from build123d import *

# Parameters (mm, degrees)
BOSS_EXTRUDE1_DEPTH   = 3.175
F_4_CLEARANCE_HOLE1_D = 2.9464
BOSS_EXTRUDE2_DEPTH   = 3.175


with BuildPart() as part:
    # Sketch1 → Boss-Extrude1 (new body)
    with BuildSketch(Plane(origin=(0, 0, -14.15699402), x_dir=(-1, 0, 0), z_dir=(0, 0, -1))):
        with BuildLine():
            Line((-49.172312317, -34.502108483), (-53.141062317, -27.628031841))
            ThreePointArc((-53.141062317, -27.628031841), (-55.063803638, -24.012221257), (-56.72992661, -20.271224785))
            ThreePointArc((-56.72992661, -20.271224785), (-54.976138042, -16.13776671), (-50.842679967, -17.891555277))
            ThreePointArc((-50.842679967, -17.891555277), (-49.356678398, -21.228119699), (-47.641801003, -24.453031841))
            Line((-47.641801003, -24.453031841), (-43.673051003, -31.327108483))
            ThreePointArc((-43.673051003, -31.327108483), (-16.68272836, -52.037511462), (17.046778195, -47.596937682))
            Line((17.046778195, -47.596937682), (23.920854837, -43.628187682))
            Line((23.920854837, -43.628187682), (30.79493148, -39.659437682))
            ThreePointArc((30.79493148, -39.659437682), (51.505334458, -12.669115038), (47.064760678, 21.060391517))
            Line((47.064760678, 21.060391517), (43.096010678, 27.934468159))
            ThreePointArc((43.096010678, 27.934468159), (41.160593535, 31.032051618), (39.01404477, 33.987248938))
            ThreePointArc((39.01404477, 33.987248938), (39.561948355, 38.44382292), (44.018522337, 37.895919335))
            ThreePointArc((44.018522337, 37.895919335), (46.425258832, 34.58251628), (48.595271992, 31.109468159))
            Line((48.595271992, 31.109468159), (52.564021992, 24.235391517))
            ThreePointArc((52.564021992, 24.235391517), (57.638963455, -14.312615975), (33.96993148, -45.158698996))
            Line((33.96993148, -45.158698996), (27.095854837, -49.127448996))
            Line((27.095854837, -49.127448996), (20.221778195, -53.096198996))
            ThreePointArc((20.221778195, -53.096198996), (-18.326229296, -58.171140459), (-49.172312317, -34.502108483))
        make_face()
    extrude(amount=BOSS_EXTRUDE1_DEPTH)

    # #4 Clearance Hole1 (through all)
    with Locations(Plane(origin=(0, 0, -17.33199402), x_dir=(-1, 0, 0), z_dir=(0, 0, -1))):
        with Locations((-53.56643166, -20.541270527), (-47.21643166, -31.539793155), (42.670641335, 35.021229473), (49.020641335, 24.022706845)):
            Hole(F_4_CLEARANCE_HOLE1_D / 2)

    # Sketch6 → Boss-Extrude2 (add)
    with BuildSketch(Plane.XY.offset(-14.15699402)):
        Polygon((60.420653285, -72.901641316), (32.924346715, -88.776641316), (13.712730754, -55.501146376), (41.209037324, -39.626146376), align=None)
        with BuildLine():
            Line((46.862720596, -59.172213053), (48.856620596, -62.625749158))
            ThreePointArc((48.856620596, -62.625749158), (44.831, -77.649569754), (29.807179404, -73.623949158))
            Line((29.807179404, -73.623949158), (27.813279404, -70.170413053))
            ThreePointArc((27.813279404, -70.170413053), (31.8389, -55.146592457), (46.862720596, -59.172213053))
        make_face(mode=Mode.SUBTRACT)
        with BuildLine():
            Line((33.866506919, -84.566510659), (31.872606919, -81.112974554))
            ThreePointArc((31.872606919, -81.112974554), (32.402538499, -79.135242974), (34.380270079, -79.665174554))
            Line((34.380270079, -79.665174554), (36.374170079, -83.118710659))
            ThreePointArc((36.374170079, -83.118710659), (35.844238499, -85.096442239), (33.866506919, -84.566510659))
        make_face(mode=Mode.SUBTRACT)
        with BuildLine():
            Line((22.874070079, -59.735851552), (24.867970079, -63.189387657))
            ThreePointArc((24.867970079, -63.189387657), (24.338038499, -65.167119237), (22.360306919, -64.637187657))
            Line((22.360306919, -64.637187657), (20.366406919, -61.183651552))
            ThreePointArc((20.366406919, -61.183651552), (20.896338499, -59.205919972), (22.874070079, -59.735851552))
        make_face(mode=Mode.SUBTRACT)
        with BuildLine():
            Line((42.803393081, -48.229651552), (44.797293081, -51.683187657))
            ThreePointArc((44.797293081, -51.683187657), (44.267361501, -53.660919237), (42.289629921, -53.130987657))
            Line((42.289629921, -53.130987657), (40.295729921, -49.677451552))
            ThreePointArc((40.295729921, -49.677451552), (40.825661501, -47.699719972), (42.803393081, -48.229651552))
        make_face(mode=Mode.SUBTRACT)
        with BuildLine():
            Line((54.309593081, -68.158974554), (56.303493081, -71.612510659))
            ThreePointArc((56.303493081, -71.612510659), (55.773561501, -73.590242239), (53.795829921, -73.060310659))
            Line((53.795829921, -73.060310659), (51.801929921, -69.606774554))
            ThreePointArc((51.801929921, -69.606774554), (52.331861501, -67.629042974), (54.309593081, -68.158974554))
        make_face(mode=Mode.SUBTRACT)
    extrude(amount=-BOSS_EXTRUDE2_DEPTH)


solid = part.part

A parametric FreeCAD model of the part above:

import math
import FreeCAD as App
import Part
import Sketcher
from FreeCAD import Vector
Q = App.Units.Quantity

doc = App.newDocument("Part")
params = doc.addObject("Spreadsheet::Sheet", "Params")
for row, (alias, value) in enumerate([
    ("sketch1_radius", "2 in"),
    ("sketch1_radius2", "1.75 in"),
    ("sketch1_radius3", "2.3125 in"),
    ("pad1_length", "0.125 in"),
    ("sketch2_diameter", "0.116 in"),
    ("hole_diameter", "0.116 in"),
    ("sketch3_radius", "0.057 in"),
    ("sketch3_radius2", "0.433 in"),
    ("sketch3_length", "1.25 in"),
    ("sketch3_length2", "0.157 in"),
    ("pad2_length", "0.125 in"),
], start=1):
    params.set(f"A{row}", alias)
    params.set(f"B{row}", "=" + value)
    params.setAlias(f"B{row}", alias)

body = doc.addObject("PartDesign::Body", "Body")

sketch1 = body.newObject("Sketcher::SketchObject", "Sketch")
sketch1.AttachmentSupport = (doc.getObject("XY_Plane"), [""])
sketch1.MapMode = "FlatFace"
sketch1.AttachmentOffset = App.Placement(Vector(0, 0, -14.156994), App.Rotation())
sketch1.addGeometry([
    Part.LineSegment(Vector(53.141062, -27.628032, 0), Vector(49.172312, -34.502108, 0)),
    Part.ArcOfCircle(Part.Circle(Vector(5.178222, -9.102108, 0), Vector(0, 0, 1), 50.8), math.radians(-120), math.radians(-30)),
    Part.LineSegment(Vector(-20.221778, -53.096199, 0), Vector(-27.095855, -49.127449, 0)),
    Part.LineSegment(Vector(-27.095855, -49.127449, 0), Vector(-33.969931, -45.158699, 0)),
    Part.ArcOfCircle(Part.Circle(Vector(-8.569931, -1.164608, 0), Vector(0, 0, 1), 50.8), math.radians(150), math.radians(240)),
    Part.LineSegment(Vector(-52.564022, 24.235392, 0), Vector(-48.595272, 31.109468, 0)),
    Part.ArcOfCircle(Part.Circle(Vector(2.272895, 1.740718, 0), Vector(0, 0, 1), 58.7375), math.radians(142.00893), math.radians(150)),
    Part.ArcOfCircle(Part.Circle(Vector(-41.516284, 35.941584, 0), Vector(0, 0, 1), 3.175), math.radians(-37.99107), math.radians(142.00893)),
    Part.ArcOfCircle(Part.Circle(Vector(2.272895, 1.740718, 0), Vector(0, 0, 1), 52.3875), math.radians(142.00893), math.radians(150)),
    Part.LineSegment(Vector(-43.096011, 27.934468, 0), Vector(-47.064761, 21.060392, 0)),
    Part.ArcOfCircle(Part.Circle(Vector(-8.569931, -1.164608, 0), Vector(0, 0, 1), 44.45), math.radians(150), math.radians(240)),
    Part.LineSegment(Vector(-30.794931, -39.659438, 0), Vector(-23.920855, -43.628188, 0)),
    Part.LineSegment(Vector(-23.920855, -43.628188, 0), Vector(-17.046778, -47.596938, 0)),
    Part.ArcOfCircle(Part.Circle(Vector(5.178222, -9.102108, 0), Vector(0, 0, 1), 44.45), math.radians(-120), math.radians(-30)),
    Part.LineSegment(Vector(43.673051, -31.327108, 0), Vector(47.641801, -24.453032, 0)),
    Part.ArcOfCircle(Part.Circle(Vector(2.272895, 1.740718, 0), Vector(0, 0, 1), 52.3875), math.radians(-30), math.radians(-22.00893)),
    Part.ArcOfCircle(Part.Circle(Vector(53.786303, -19.08139, 0), Vector(0, 0, 1), 3.175), math.radians(-22.00893), math.radians(157.99107)),
    Part.ArcOfCircle(Part.Circle(Vector(2.272895, 1.740718, 0), Vector(0, 0, 1), 58.7375), math.radians(-30), math.radians(-22.00893)),
], False)
sketch1.addConstraint([
    Sketcher.Constraint("Tangent", 0, 2, 1, 2),
    Sketcher.Constraint("Tangent", 1, 1, 2, 1),
    Sketcher.Constraint("Coincident", 2, 2, 3, 1),
    Sketcher.Constraint("Tangent", 3, 2, 4, 2),
    Sketcher.Constraint("Tangent", 4, 1, 5, 1),
    Sketcher.Constraint("Tangent", 5, 2, 6, 2),
    Sketcher.Constraint("Tangent", 6, 1, 7, 2),
    Sketcher.Constraint("Tangent", 7, 1, 8, 1),
    Sketcher.Constraint("Tangent", 8, 2, 9, 1),
    Sketcher.Constraint("Tangent", 9, 2, 10, 1),
    Sketcher.Constraint("Tangent", 10, 2, 11, 1),
    Sketcher.Constraint("Coincident", 11, 2, 12, 1),
    Sketcher.Constraint("Tangent", 12, 2, 13, 1),
    Sketcher.Constraint("Tangent", 13, 2, 14, 1),
    Sketcher.Constraint("Tangent", 14, 2, 15, 1),
    Sketcher.Constraint("Tangent", 15, 2, 16, 2),
    Sketcher.Constraint("Tangent", 16, 1, 17, 2),
    Sketcher.Constraint("Tangent", 17, 1, 0, 1),
    Sketcher.Constraint("Coincident", 8, 3, 6, 3),
    Sketcher.Constraint("Coincident", 10, 3, 4, 3),
    Sketcher.Constraint("Coincident", 13, 3, 1, 3),
    Sketcher.Constraint("Coincident", 15, 3, 6, 3),
    Sketcher.Constraint("Coincident", 17, 3, 6, 3),
    Sketcher.Constraint("Equal", 1, 4),
    Sketcher.Constraint("Equal", 10, 13),
    Sketcher.Constraint("Equal", 8, 15),
    Sketcher.Constraint("Equal", 7, 16),
    Sketcher.Constraint("Perpendicular", 0, 2),
    Sketcher.Constraint("Parallel", 2, 3),
    Sketcher.Constraint("Perpendicular", 3, 5),
    Sketcher.Constraint("Parallel", 5, 9),
    Sketcher.Constraint("Perpendicular", 9, 11),
    Sketcher.Constraint("Equal", 0, 2),
    Sketcher.Constraint("Equal", 2, 3),
    Sketcher.Constraint("Equal", 9, 11),
    Sketcher.Constraint("Radius", 1, Q("2 in")),
    Sketcher.Constraint("Radius", 10, Q("1.75 in")),
    Sketcher.Constraint("Angle", 0, Q("-120 deg")),
    Sketcher.Constraint("Radius", 6, Q("2.3125 in")),
    Sketcher.Constraint("DistanceY", 1, 1, -1, 1, 53.096199),
    Sketcher.Constraint("DistanceX", -1, 1, 14, 2, 47.641801),
    Sketcher.Constraint("DistanceX", 4, 1, 6, 1, 8.5455),
    Sketcher.Constraint("DistanceY", 16, 3, -1, 1, 19.08139),
])
sketch1.setExpression("Constraints[35]", "Params.sketch1_radius")
sketch1.setExpression("Constraints[36]", "Params.sketch1_radius2")
sketch1.setExpression("Constraints[38]", "Params.sketch1_radius3")
pad1 = body.newObject("PartDesign::Pad", "Pad")
pad1.Profile = sketch1
pad1.setExpression("Length", "Params.pad1_length")
pad1.Reversed = True

sketch2 = body.newObject("Sketcher::SketchObject", "Sketch001")
sketch2.AttachmentSupport = (doc.getObject("XY_Plane"), [""])
sketch2.MapMode = "FlatFace"
sketch2.AttachmentOffset = App.Placement(Vector(0, 0, -17.331994), App.Rotation())
sketch2.addGeometry([
    Part.Circle(Vector(53.566432, -20.541271, 0), Vector(0, 0, 1), 1.4732),
    Part.Circle(Vector(47.216432, -31.539793, 0), Vector(0, 0, 1), 1.4732),
    Part.Circle(Vector(-42.670641, 35.021229, 0), Vector(0, 0, 1), 1.4732),
    Part.Circle(Vector(-49.020641, 24.022707, 0), Vector(0, 0, 1), 1.4732),
], False)
sketch2.addConstraint([
    Sketcher.Constraint("Equal", 0, 1),
    Sketcher.Constraint("Equal", 1, 2),
    Sketcher.Constraint("Equal", 2, 3),
    Sketcher.Constraint("Diameter", 0, Q("0.116 in")),
    Sketcher.Constraint("DistanceX", 1, 3, 0, 3, Q("0.25 in")),
    Sketcher.Constraint("DistanceX", 3, 3, 2, 3, Q("0.25 in")),
    Sketcher.Constraint("DistanceY", 0, 3, 2, 3, Q("2.1875 in")),
    Sketcher.Constraint("DistanceY", 1, 3, 3, 3, Q("2.1875 in")),
    Sketcher.Constraint("DistanceX", -1, 1, 0, 3, 53.566432),
    Sketcher.Constraint("DistanceY", 0, 3, -1, 1, 20.541271),
    Sketcher.Constraint("DistanceX", 2, 3, -1, 1, 42.670641),
    Sketcher.Constraint("DistanceY", 1, 3, -1, 1, 31.539793),
])
sketch2.setExpression("Constraints[3]", "Params.sketch2_diameter")
doc.recompute()
hole = body.newObject("PartDesign::Hole", "Hole")
hole.Profile = sketch2
hole.ThreadType = "None"
hole.setExpression("Diameter", "Params.hole_diameter")
hole.DepthType = "ThroughAll"
hole.Reversed = True

sketch3 = body.newObject("Sketcher::SketchObject", "Sketch002")
sketch3.AttachmentSupport = (doc.getObject("XY_Plane"), [""])
sketch3.MapMode = "FlatFace"
sketch3.AttachmentOffset = App.Placement(Vector(0, 0, -14.156994), App.Rotation())
sketch3.addGeometry([
    Part.LineSegment(Vector(32.924347, -88.776641, 0), Vector(60.420653, -72.901641, 0)),
    Part.LineSegment(Vector(60.420653, -72.901641, 0), Vector(41.209037, -39.626146, 0)),
    Part.LineSegment(Vector(41.209037, -39.626146, 0), Vector(13.712731, -55.501146, 0)),
    Part.LineSegment(Vector(13.712731, -55.501146, 0), Vector(32.924347, -88.776641, 0)),
    Part.LineSegment(Vector(54.309593, -68.158975, 0), Vector(56.303493, -71.612511, 0)),
    Part.ArcOfCircle(Part.Circle(Vector(55.049662, -72.336411, 0), Vector(0, 0, 1), 1.4478), math.radians(-150), math.radians(30)),
    Part.LineSegment(Vector(53.79583, -73.060311, 0), Vector(51.80193, -69.606775, 0)),
    Part.ArcOfCircle(Part.Circle(Vector(53.055762, -68.882875, 0), Vector(0, 0, 1), 1.4478), math.radians(30), math.radians(210)),
    Part.LineSegment(Vector(33.866507, -84.566511, 0), Vector(31.872607, -81.112975, 0)),
    Part.ArcOfCircle(Part.Circle(Vector(33.126438, -80.389075, 0), Vector(0, 0, 1), 1.4478), math.radians(30), math.radians(210)),
    Part.LineSegment(Vector(34.38027, -79.665175, 0), Vector(36.37417, -83.118711, 0)),
    Part.ArcOfCircle(Part.Circle(Vector(35.120338, -83.842611, 0), Vector(0, 0, 1), 1.4478), math.radians(-150), math.radians(30)),
    Part.LineSegment(Vector(46.862721, -59.172213, 0), Vector(48.856621, -62.625749, 0)),
    Part.ArcOfCircle(Part.Circle(Vector(39.3319, -68.124849, 0), Vector(0, 0, 1), 10.9982), math.radians(-150), math.radians(30)),
    Part.LineSegment(Vector(29.807179, -73.623949, 0), Vector(27.813279, -70.170413, 0)),
    Part.ArcOfCircle(Part.Circle(Vector(37.338, -64.671313, 0), Vector(0, 0, 1), 10.9982), math.radians(30), math.radians(210)),
    Part.LineSegment(Vector(42.803393, -48.229652, 0), Vector(44.797293, -51.683188, 0)),
    Part.ArcOfCircle(Part.Circle(Vector(43.543462, -52.407088, 0), Vector(0, 0, 1), 1.4478), math.radians(-150), math.radians(30)),
    Part.LineSegment(Vector(42.28963, -53.130988, 0), Vector(40.29573, -49.677452, 0)),
    Part.ArcOfCircle(Part.Circle(Vector(41.549562, -48.953552, 0), Vector(0, 0, 1), 1.4478), math.radians(30), math.radians(210)),
    Part.LineSegment(Vector(22.87407, -59.735852, 0), Vector(24.86797, -63.189388, 0)),
    Part.ArcOfCircle(Part.Circle(Vector(23.614138, -63.913288, 0), Vector(0, 0, 1), 1.4478), math.radians(-150), math.radians(30)),
    Part.LineSegment(Vector(22.360307, -64.637188, 0), Vector(20.366407, -61.183652, 0)),
    Part.ArcOfCircle(Part.Circle(Vector(21.620238, -60.459752, 0), Vector(0, 0, 1), 1.4478), math.radians(30), math.radians(210)),
], False)
sketch3.addConstraint([
    Sketcher.Constraint("Coincident", 0, 2, 1, 1),
    Sketcher.Constraint("Coincident", 1, 2, 2, 1),
    Sketcher.Constraint("Coincident", 2, 2, 3, 1),
    Sketcher.Constraint("Coincident", 3, 2, 0, 1),
    Sketcher.Constraint("Tangent", 4, 2, 5, 2),
    Sketcher.Constraint("Tangent", 5, 1, 6, 1),
    Sketcher.Constraint("Tangent", 6, 2, 7, 2),
    Sketcher.Constraint("Tangent", 7, 1, 4, 1),
    Sketcher.Constraint("Tangent", 8, 2, 9, 2),
    Sketcher.Constraint("Tangent", 9, 1, 10, 1),
    Sketcher.Constraint("Tangent", 10, 2, 11, 2),
    Sketcher.Constraint("Tangent", 11, 1, 8, 1),
    Sketcher.Constraint("Tangent", 12, 2, 13, 2),
    Sketcher.Constraint("Tangent", 13, 1, 14, 1),
    Sketcher.Constraint("Tangent", 14, 2, 15, 2),
    Sketcher.Constraint("Tangent", 15, 1, 12, 1),
    Sketcher.Constraint("Tangent", 16, 2, 17, 2),
    Sketcher.Constraint("Tangent", 17, 1, 18, 1),
    Sketcher.Constraint("Tangent", 18, 2, 19, 2),
    Sketcher.Constraint("Tangent", 19, 1, 16, 1),
    Sketcher.Constraint("Tangent", 20, 2, 21, 2),
    Sketcher.Constraint("Tangent", 21, 1, 22, 1),
    Sketcher.Constraint("Tangent", 22, 2, 23, 2),
    Sketcher.Constraint("Tangent", 23, 1, 20, 1),
    Sketcher.Constraint("Equal", 5, 7),
    Sketcher.Constraint("Equal", 7, 9),
    Sketcher.Constraint("Equal", 9, 11),
    Sketcher.Constraint("Equal", 13, 15),
    Sketcher.Constraint("Equal", 11, 17),
    Sketcher.Constraint("Equal", 17, 19),
    Sketcher.Constraint("Equal", 19, 21),
    Sketcher.Constraint("Equal", 21, 23),
    Sketcher.Constraint("Perpendicular", 0, 1),
    Sketcher.Constraint("Perpendicular", 1, 2),
    Sketcher.Constraint("Perpendicular", 2, 3),
    Sketcher.Constraint("Parallel", 3, 4),
    Sketcher.Constraint("Parallel", 6, 8),
    Sketcher.Constraint("Parallel", 10, 12),
    Sketcher.Constraint("Parallel", 14, 16),
    Sketcher.Constraint("Parallel", 18, 20),
    Sketcher.Constraint("Equal", 6, 8),
    Sketcher.Constraint("Equal", 10, 12),
    Sketcher.Constraint("Equal", 14, 16),
    Sketcher.Constraint("Equal", 18, 20),
    Sketcher.Constraint("Angle", 0, Q("30 deg")),
    Sketcher.Constraint("Radius", 5, Q("0.057 in")),
    Sketcher.Constraint("Radius", 13, Q("0.433 in")),
    Sketcher.Constraint("Distance", 0, Q("1.25 in")),
    Sketcher.Constraint("DistanceX", -1, 1, 15, 3, Q("1.47 in")),
    Sketcher.Constraint("Distance", 4, Q("0.157 in")),
    Sketcher.Constraint("DistanceY", 9, 3, 7, 3, Q("0.453 in")),
    Sketcher.Constraint("DistanceX", 17, 3, 5, 3, Q("0.453 in")),
    Sketcher.Constraint("DistanceX", 21, 3, 11, 3, Q("0.453 in")),
    Sketcher.Constraint("DistanceY", 21, 3, 17, 3, Q("0.453 in")),
    Sketcher.Constraint("DistanceX", 23, 3, 1, 2, 19.588799),
    Sketcher.Constraint("Distance", 1, 38.423232),
    Sketcher.Constraint("DistanceX", -1, 1, 5, 3, 55.049662),
    Sketcher.Constraint("DistanceY", 5, 3, -1, 1, 72.336411),
    Sketcher.Constraint("DistanceX", -1, 1, 9, 3, 33.126438),
    Sketcher.Constraint("DistanceY", 13, 3, -1, 1, 68.124849),
    Sketcher.Constraint("DistanceY", 19, 3, -1, 1, 48.953552),
    Sketcher.Constraint("DistanceY", 0, 2, -1, 1, 72.901641),
])
sketch3.setExpression("Constraints[45]", "Params.sketch3_radius")
sketch3.setExpression("Constraints[46]", "Params.sketch3_radius2")
sketch3.setExpression("Constraints[47]", "Params.sketch3_length")
sketch3.setExpression("Constraints[49]", "Params.sketch3_length2")
pad2 = body.newObject("PartDesign::Pad", "Pad001")
pad2.Profile = sketch3
pad2.setExpression("Length", "Params.pad2_length")
pad2.Reversed = True

doc.recompute()
